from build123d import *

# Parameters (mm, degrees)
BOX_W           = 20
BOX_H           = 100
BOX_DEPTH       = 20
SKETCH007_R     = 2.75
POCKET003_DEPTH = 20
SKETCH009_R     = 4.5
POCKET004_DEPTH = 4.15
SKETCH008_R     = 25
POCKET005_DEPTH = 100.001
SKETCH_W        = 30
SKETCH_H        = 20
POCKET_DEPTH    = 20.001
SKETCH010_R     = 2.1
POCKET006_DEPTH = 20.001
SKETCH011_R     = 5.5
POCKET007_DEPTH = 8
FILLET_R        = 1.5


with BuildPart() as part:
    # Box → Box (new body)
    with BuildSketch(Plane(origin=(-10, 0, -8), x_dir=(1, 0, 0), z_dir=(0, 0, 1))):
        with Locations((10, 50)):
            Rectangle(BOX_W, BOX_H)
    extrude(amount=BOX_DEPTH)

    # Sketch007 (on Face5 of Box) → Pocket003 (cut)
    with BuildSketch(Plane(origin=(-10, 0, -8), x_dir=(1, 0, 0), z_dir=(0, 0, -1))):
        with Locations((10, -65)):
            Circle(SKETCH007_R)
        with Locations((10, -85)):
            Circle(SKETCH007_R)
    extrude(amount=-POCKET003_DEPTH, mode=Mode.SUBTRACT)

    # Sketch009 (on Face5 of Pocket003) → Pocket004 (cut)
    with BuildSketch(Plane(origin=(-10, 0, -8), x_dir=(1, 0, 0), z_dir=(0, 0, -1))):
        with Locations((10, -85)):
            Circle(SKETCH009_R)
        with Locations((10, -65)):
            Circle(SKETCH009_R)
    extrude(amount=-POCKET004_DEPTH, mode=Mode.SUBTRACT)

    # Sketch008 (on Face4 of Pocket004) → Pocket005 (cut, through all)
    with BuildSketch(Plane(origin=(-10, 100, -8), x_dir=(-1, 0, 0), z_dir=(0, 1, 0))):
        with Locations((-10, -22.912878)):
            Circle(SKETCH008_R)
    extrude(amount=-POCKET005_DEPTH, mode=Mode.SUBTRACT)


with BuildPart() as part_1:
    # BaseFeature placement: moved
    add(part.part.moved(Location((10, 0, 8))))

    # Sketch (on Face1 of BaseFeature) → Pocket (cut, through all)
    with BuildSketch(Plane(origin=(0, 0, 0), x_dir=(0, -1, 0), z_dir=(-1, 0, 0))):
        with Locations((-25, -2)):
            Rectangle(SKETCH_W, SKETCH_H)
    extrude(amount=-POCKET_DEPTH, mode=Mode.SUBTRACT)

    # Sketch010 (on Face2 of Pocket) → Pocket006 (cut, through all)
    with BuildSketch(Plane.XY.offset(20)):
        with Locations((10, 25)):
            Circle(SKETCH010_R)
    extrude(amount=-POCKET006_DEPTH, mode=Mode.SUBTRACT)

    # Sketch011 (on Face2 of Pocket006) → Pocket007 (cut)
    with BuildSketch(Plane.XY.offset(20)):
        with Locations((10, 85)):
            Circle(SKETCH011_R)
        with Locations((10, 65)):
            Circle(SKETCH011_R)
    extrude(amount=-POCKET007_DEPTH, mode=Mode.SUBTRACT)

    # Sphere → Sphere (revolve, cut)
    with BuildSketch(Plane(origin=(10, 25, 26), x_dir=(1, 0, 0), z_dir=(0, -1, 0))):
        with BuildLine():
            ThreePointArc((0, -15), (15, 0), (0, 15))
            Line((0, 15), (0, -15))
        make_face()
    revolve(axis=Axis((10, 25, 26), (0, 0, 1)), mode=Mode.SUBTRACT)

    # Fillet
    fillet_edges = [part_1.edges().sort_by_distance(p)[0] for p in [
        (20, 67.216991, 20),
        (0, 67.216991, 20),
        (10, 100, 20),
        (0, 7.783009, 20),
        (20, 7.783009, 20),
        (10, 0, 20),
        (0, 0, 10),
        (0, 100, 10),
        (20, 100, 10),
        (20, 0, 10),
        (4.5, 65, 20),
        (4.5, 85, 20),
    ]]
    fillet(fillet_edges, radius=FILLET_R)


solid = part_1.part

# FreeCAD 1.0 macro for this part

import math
import FreeCAD as App
import Part
import Sketcher


def edges_at(feature, points):
    """Names of the edges that pass closest to the given points."""
    edges = feature.Shape.Edges
    near = lambda p: min(range(len(edges)), key=lambda i: edges[i].distToShape(Part.Vertex(*p))[0])
    return sorted({f"Edge{near(p) + 1}" for p in points})


def add_polygon(sketch, points):
    """Adds a closed chain of lines whose ends are joined by coincident constraints."""
    first, n = sketch.GeometryCount, len(points)
    for a, b in zip(points, points[1:] + points[:1]):
        sketch.addGeometry(Part.LineSegment(App.Vector(*a, 0), App.Vector(*b, 0)), False)
    for i in range(n):
        sketch.addConstraint(Sketcher.Constraint("Coincident", first + i, 2, first + (i + 1) % n, 1))

doc = App.newDocument("Part")
params = doc.addObject("Spreadsheet::Sheet", "Params")
for row, (alias, value) in enumerate([
    ("sketch1_width", "20 mm"),
    ("sketch1_height", "100 mm"),
    ("pad1_length", "20 mm"),
    ("sketch2_diameter", "5.5 mm"),
    ("pocket1_length", "20 mm"),
    ("sketch3_diameter", "9 mm"),
    ("pocket2_length", "4.15 mm"),
    ("sketch4_diameter", "50 mm"),
    ("sketch5_width", "30 mm"),
    ("sketch5_height", "20 mm"),
    ("sketch6_diameter", "4.2 mm"),
    ("sketch7_diameter", "11 mm"),
    ("pocket6_length", "8 mm"),
    ("sketch8_radius", "15 mm"),
    ("groove_angle", "360 deg"),
    ("fillet_radius", "1.5 mm"),
], start=1):
    params.set(f"A{row}", alias)
    params.set(f"B{row}", "=" + value)
    params.setAlias(f"B{row}", alias)

body = doc.addObject("PartDesign::Body", "Body")

# Sketch on XY plane
sketch1 = body.newObject("Sketcher::SketchObject", "Sketch")
sketch1.AttachmentSupport = (doc.getObject("XY_Plane"), [""])
sketch1.MapMode = "FlatFace"
sketch1.AttachmentOffset = App.Placement(App.Vector(0, 0, -8), App.Rotation())
add_polygon(sketch1, [(-10, 100), (-10, 0), (10, 0), (10, 100)])  # lines 0-3
sketch1.addConstraint(Sketcher.Constraint("Vertical", 0))
sketch1.addConstraint(Sketcher.Constraint("Horizontal", 1))
sketch1.addConstraint(Sketcher.Constraint("Vertical", 2))
sketch1.addConstraint(Sketcher.Constraint("Horizontal", 3))
sketch1.addConstraint(Sketcher.Constraint("Symmetric", 0, 2, 1, 2, -1, 1))
sketch1.addConstraint(Sketcher.Constraint("DistanceX", 1, 1, 1, 2, 20.0))
sketch1.addConstraint(Sketcher.Constraint("DistanceY", 0, 2, 0, 1, 100.0))
sketch1.setExpression("Constraints[9]", "Params.sketch1_width")
sketch1.setExpression("Constraints[10]", "Params.sketch1_height")
pad1 = body.newObject("PartDesign::Pad", "Pad")
pad1.Profile = sketch1
pad1.setExpression("Length", "Params.pad1_length")

# Sketch on XY plane
sketch2 = body.newObject("Sketcher::SketchObject", "Sketch001")
sketch2.AttachmentSupport = (doc.getObject("XY_Plane"), [""])
sketch2.MapMode = "FlatFace"
sketch2.AttachmentOffset = App.Placement(App.Vector(0, 0, -8), App.Rotation())
sketch2.addGeometry(Part.Circle(App.Vector(0, 65, 0), App.Vector(0, 0, 1), 2.75), False)
sketch2.addGeometry(Part.Circle(App.Vector(0, 85, 0), App.Vector(0, 0, 1), 2.75), False)
sketch2.addConstraint(Sketcher.Constraint("Equal", 0, 1))
sketch2.addConstraint(Sketcher.Constraint("PointOnObject", 0, 3, -2))
sketch2.addConstraint(Sketcher.Constraint("PointOnObject", 1, 3, -2))
sketch2.addConstraint(Sketcher.Constraint("Diameter", 0, 5.5))
sketch2.addConstraint(Sketcher.Constraint("DistanceY", -1, 1, 0, 3, 65.0))
sketch2.addConstraint(Sketcher.Constraint("DistanceY", -1, 1, 1, 3, 85.0))
sketch2.setExpression("Constraints[3]", "Params.sketch2_diameter")
pocket1 = body.newObject("PartDesign::Pocket", "Pocket")
pocket1.Profile = sketch2
pocket1.setExpression("Length", "Params.pocket1_length")
pocket1.Reversed = True

# Sketch on XY plane
sketch3 = body.newObject("Sketcher::SketchObject", "Sketch002")
sketch3.AttachmentSupport = (doc.getObject("XY_Plane"), [""])
sketch3.MapMode = "FlatFace"
sketch3.AttachmentOffset = App.Placement(App.Vector(0, 0, -8), App.Rotation())
sketch3.addGeometry(Part.Circle(App.Vector(0, 85, 0), App.Vector(0, 0, 1), 4.5), False)
sketch3.addGeometry(Part.Circle(App.Vector(0, 65, 0), App.Vector(0, 0, 1), 4.5), False)
sketch3.addConstraint(Sketcher.Constraint("Equal", 0, 1))
sketch3.addConstraint(Sketcher.Constraint("PointOnObject", 0, 3, -2))
sketch3.addConstraint(Sketcher.Constraint("PointOnObject", 1, 3, -2))
sketch3.addConstraint(Sketcher.Constraint("Diameter", 0, 9.0))
sketch3.addConstraint(Sketcher.Constraint("DistanceY", -1, 1, 0, 3, 85.0))
sketch3.addConstraint(Sketcher.Constraint("DistanceY", -1, 1, 1, 3, 65.0))
sketch3.setExpression("Constraints[3]", "Params.sketch3_diameter")
pocket2 = body.newObject("PartDesign::Pocket", "Pocket001")
pocket2.Profile = sketch3
pocket2.setExpression("Length", "Params.pocket2_length")
pocket2.Reversed = True

# Sketch on XZ plane
sketch4 = body.newObject("Sketcher::SketchObject", "Sketch003")
sketch4.AttachmentSupport = (doc.getObject("XZ_Plane"), [""])
sketch4.MapMode = "FlatFace"
sketch4.AttachmentOffset = App.Placement(App.Vector(0, 0, -100), App.Rotation())
sketch4.addGeometry(Part.Circle(App.Vector(0, -30.912878, 0), App.Vector(0, 0, 1), 25), False)
sketch4.addConstraint(Sketcher.Constraint("PointOnObject", 0, 3, -2))
sketch4.addConstraint(Sketcher.Constraint("Diameter", 0, 50.0))
sketch4.addConstraint(Sketcher.Constraint("DistanceY", 0, 3, -1, 1, 30.912878))
sketch4.setExpression("Constraints[1]", "Params.sketch4_diameter")
pocket3 = body.newObject("PartDesign::Pocket", "Pocket002")
pocket3.Profile = sketch4
pocket3.Type = "ThroughAll"
pocket3.Reversed = True
body2 = doc.addObject("PartDesign::Body", "Body001")
doc.recompute()

body.Placement = App.Placement(App.Vector(10, 0, 8), App.Rotation(App.Vector(0, 0, 1), 0))
boolean = body2.newObject("PartDesign::Boolean", "Boolean")
boolean.Type = "Fuse"
boolean.addObjects([body])

# Sketch on YZ plane
sketch5 = body2.newObject("Sketcher::SketchObject", "Sketch004")
sketch5.AttachmentSupport = (doc.getObject("YZ_Plane001"), [""])
sketch5.MapMode = "FlatFace"
add_polygon(sketch5, [(40, 8), (40, -12), (10, -12), (10, 8)])  # lines 0-3
sketch5.addConstraint(Sketcher.Constraint("Vertical", 0))
sketch5.addConstraint(Sketcher.Constraint("Horizontal", 1))
sketch5.addConstraint(Sketcher.Constraint("Vertical", 2))
sketch5.addConstraint(Sketcher.Constraint("Horizontal", 3))
sketch5.addConstraint(Sketcher.Constraint("DistanceX", 1, 2, 1, 1, 30.0))
sketch5.addConstraint(Sketcher.Constraint("DistanceY", 0, 2, 0, 1, 20.0))
sketch5.addConstraint(Sketcher.Constraint("DistanceX", -1, 1, 0, 2, 40.0))
sketch5.addConstraint(Sketcher.Constraint("DistanceY", 0, 2, -1, 1, 12.0))
sketch5.setExpression("Constraints[8]", "Params.sketch5_width")
sketch5.setExpression("Constraints[9]", "Params.sketch5_height")
pocket4 = body2.newObject("PartDesign::Pocket", "Pocket003")
pocket4.Profile = sketch5
pocket4.Type = "ThroughAll"
pocket4.Reversed = True

# Sketch on XY plane
sketch6 = body2.newObject("Sketcher::SketchObject", "Sketch005")
sketch6.AttachmentSupport = (doc.getObject("XY_Plane001"), [""])
sketch6.MapMode = "FlatFace"
sketch6.AttachmentOffset = App.Placement(App.Vector(0, 0, 20), App.Rotation())
sketch6.addGeometry(Part.Circle(App.Vector(10, 25, 0), App.Vector(0, 0, 1), 2.1), False)
sketch6.addConstraint(Sketcher.Constraint("Diameter", 0, 4.2))
sketch6.addConstraint(Sketcher.Constraint("DistanceX", -1, 1, 0, 3, 10.0))
sketch6.addConstraint(Sketcher.Constraint("DistanceY", -1, 1, 0, 3, 25.0))
sketch6.setExpression("Constraints[0]", "Params.sketch6_diameter")
pocket5 = body2.newObject("PartDesign::Pocket", "Pocket004")
pocket5.Profile = sketch6
pocket5.Type = "ThroughAll"

# Sketch on XY plane
sketch7 = body2.newObject("Sketcher::SketchObject", "Sketch006")
sketch7.AttachmentSupport = (doc.getObject("XY_Plane001"), [""])
sketch7.MapMode = "FlatFace"
sketch7.AttachmentOffset = App.Placement(App.Vector(0, 0, 20), App.Rotation())
sketch7.addGeometry(Part.Circle(App.Vector(10, 85, 0), App.Vector(0, 0, 1), 5.5), False)
sketch7.addGeometry(Part.Circle(App.Vector(10, 65, 0), App.Vector(0, 0, 1), 5.5), False)
sketch7.addConstraint(Sketcher.Constraint("Equal", 0, 1))
sketch7.addConstraint(Sketcher.Constraint("Vertical", 0, 3, 1, 3))
sketch7.addConstraint(Sketcher.Constraint("Diameter", 0, 11.0))
sketch7.addConstraint(Sketcher.Constraint("DistanceX", -1, 1, 0, 3, 10.0))
sketch7.addConstraint(Sketcher.Constraint("DistanceY", -1, 1, 0, 3, 85.0))
sketch7.addConstraint(Sketcher.Constraint("DistanceY", -1, 1, 1, 3, 65.0))
sketch7.setExpression("Constraints[2]", "Params.sketch7_diameter")
pocket6 = body2.newObject("PartDesign::Pocket", "Pocket005")
pocket6.Profile = sketch7
pocket6.setExpression("Length", "Params.pocket6_length")

# Sketch on XZ plane
sketch8 = body2.newObject("Sketcher::SketchObject", "Sketch007")
sketch8.AttachmentSupport = (doc.getObject("XZ_Plane001"), [""])
sketch8.MapMode = "FlatFace"
sketch8.AttachmentOffset = App.Placement(App.Vector(0, 0, -25), App.Rotation())
sketch8.addGeometry(Part.ArcOfCircle(Part.Circle(App.Vector(10, 26, 0), App.Vector(0, 0, 1), 15), math.radians(-90), math.radians(90)), False)
sketch8.addGeometry(Part.LineSegment(App.Vector(10, 41, 0), App.Vector(10, 11, 0)), False)
sketch8.addGeometry(Part.LineSegment(App.Vector(10, 11, 0), App.Vector(10, 41, 0)), True)  # axis
sketch8.addConstraint(Sketcher.Constraint("Coincident", 0, 1, 1, 2))
sketch8.addConstraint(Sketcher.Constraint("Coincident", 1, 1, 0, 2))
sketch8.addConstraint(Sketcher.Constraint("Vertical", 1))
sketch8.addConstraint(Sketcher.Constraint("Vertical", 2))
sketch8.addConstraint(Sketcher.Constraint("Coincident", 2, 1, 0, 1))
sketch8.addConstraint(Sketcher.Constraint("Equal", 1, 2))
sketch8.addConstraint(Sketcher.Constraint("Radius", 0, 15.0))
sketch8.addConstraint(Sketcher.Constraint("DistanceX", -1, 1, 0, 3, 10.0))
sketch8.addConstraint(Sketcher.Constraint("DistanceY", -1, 1, 0, 3, 26.0))
sketch8.addConstraint(Sketcher.Constraint("DistanceX", -1, 1, 0, 1, 10.0))
sketch8.setExpression("Constraints[6]", "Params.sketch8_radius")
groove = body2.newObject("PartDesign::Groove", "Groove")
groove.Profile = sketch8
groove.ReferenceAxis = (sketch8, ["Axis0"])
groove.setExpression("Angle", "Params.groove_angle")
doc.recompute()

fillet = body2.newObject("PartDesign::Fillet", "Fillet")
fillet.Base = (groove, edges_at(groove, [
    (20, 67.217, 20),
    (0, 67.217, 20),
    (10, 100, 20),
    (0, 7.783, 20),
    (20, 7.783, 20),
    (10, 0, 20),
    (0, 0, 10),
    (0, 100, 10),
    (20, 100, 10),
    (20, 0, 10),
    (4.5, 65, 20),
    (4.5, 85, 20),
]))
fillet.setExpression("Radius", "Params.fillet_radius")

doc.recompute()
